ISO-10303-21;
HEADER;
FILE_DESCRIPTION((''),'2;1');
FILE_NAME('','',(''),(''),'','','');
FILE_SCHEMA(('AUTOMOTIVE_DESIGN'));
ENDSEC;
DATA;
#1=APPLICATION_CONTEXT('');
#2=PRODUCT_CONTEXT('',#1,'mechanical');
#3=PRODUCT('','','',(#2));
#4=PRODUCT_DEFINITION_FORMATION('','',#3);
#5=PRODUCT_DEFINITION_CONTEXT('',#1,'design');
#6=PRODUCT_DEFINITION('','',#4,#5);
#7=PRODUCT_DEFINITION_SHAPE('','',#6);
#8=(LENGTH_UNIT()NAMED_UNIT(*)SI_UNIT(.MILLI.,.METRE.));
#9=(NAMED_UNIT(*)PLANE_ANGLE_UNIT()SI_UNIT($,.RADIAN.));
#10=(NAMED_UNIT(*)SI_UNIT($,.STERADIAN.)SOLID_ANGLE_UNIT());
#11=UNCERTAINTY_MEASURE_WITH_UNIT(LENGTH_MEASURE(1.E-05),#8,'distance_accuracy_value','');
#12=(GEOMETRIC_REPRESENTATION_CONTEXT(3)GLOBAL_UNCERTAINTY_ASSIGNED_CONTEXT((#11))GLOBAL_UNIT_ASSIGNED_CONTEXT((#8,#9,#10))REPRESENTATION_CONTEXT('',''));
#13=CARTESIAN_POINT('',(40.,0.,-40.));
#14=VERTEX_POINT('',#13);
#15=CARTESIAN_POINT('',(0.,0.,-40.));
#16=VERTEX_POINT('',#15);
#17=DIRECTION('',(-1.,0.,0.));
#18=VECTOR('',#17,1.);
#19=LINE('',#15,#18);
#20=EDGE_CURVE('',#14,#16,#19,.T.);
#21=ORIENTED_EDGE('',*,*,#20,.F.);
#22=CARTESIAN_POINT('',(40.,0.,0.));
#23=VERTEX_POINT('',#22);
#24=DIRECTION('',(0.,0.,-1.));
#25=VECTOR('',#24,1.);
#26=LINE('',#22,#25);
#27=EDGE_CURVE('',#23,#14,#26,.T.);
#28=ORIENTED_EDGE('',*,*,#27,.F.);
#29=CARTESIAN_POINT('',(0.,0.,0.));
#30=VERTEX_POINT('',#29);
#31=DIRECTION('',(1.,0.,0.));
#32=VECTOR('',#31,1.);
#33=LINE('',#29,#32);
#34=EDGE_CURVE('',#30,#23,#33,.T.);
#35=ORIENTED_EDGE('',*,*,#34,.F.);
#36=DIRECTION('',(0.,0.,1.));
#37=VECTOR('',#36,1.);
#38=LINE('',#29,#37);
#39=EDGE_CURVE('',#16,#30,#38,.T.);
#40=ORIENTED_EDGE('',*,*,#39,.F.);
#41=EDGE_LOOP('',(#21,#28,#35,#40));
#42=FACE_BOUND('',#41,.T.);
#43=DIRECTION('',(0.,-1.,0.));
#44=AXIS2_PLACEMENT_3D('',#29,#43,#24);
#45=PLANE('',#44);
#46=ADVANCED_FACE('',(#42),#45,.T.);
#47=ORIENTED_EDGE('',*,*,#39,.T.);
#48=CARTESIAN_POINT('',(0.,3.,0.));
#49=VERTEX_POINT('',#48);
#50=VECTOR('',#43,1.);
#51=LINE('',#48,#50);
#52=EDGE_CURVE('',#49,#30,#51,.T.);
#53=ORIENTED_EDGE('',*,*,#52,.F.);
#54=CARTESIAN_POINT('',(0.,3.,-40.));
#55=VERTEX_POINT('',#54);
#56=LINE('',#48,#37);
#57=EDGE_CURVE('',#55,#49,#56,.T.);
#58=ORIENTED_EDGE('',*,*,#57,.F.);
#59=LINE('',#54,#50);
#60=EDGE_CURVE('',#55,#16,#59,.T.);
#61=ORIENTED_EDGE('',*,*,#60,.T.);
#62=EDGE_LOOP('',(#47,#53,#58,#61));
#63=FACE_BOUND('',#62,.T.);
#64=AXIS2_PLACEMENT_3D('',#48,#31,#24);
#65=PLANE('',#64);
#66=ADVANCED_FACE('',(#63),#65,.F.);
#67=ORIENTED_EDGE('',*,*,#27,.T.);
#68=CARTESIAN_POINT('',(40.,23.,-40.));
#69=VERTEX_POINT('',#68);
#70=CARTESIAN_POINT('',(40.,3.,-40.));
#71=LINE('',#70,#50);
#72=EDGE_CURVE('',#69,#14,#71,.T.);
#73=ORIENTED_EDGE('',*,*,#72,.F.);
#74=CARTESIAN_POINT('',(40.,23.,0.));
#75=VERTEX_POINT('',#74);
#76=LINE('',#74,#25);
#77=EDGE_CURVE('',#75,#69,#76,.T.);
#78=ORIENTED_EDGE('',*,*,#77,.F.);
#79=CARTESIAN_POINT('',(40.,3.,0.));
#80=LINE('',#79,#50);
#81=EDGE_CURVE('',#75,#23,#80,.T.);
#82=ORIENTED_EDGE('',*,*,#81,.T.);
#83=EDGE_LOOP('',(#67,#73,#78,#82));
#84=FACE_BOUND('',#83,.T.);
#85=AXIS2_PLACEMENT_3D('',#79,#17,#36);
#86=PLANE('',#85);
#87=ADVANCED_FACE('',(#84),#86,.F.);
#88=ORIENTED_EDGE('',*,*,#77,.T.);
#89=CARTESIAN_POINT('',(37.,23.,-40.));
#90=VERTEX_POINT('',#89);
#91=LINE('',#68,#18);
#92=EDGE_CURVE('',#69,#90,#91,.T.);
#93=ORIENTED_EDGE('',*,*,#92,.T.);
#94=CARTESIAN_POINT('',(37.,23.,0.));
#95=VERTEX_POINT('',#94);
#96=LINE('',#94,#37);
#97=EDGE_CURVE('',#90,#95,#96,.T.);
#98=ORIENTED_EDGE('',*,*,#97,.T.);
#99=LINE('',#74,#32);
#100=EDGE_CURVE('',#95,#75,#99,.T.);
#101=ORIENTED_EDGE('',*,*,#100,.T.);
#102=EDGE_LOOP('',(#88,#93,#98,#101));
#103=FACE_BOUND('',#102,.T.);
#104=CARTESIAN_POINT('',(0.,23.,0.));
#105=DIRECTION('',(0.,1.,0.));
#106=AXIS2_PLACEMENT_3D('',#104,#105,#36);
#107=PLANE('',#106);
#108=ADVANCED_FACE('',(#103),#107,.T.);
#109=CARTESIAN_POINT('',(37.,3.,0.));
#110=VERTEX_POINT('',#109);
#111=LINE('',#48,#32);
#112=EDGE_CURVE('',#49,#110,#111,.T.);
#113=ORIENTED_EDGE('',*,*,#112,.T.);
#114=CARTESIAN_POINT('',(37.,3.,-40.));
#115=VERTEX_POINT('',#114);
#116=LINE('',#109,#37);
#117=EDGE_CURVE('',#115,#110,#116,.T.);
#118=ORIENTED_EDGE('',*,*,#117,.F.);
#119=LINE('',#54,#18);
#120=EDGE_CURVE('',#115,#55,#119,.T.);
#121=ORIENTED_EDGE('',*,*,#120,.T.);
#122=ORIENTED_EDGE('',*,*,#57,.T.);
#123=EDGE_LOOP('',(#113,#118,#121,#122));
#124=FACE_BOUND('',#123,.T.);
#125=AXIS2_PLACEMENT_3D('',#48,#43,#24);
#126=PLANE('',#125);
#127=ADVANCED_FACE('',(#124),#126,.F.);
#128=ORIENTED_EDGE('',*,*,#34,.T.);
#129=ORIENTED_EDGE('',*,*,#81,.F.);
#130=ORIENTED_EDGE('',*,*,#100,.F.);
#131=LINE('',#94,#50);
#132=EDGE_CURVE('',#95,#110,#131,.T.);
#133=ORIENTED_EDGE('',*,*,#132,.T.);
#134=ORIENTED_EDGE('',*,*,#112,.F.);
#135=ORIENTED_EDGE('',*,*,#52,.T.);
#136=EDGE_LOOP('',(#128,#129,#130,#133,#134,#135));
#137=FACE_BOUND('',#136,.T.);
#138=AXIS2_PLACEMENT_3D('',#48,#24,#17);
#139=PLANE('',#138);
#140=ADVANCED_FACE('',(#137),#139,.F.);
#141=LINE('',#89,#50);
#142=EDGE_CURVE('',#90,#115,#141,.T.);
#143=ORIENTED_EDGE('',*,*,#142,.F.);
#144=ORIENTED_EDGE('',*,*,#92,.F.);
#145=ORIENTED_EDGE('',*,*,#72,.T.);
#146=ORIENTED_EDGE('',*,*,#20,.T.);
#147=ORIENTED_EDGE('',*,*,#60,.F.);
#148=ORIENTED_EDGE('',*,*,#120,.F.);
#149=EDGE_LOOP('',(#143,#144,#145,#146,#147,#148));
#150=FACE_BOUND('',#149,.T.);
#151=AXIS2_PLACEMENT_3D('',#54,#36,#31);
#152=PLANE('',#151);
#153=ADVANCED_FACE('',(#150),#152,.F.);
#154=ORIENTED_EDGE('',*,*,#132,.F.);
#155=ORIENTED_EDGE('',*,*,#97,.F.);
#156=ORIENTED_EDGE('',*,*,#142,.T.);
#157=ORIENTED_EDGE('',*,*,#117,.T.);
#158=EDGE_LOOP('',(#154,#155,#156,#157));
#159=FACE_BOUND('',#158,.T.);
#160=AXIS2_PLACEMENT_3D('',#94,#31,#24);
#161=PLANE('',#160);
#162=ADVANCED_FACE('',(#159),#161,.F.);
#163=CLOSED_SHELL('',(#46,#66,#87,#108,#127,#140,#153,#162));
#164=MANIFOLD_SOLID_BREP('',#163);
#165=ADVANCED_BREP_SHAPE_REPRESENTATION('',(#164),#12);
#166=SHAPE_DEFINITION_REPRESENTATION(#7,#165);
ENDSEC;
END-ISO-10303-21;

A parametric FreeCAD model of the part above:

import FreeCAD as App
import Part
import Sketcher
from FreeCAD import Vector

doc = App.newDocument("Part")
body = doc.addObject("PartDesign::Body", "Body")

sketch1 = body.newObject("Sketcher::SketchObject", "Sketch")
sketch1.AttachmentSupport = (doc.getObject("XZ_Plane"), [""])
sketch1.MapMode = "FlatFace"
sketch1.addGeometry(Part.LineSegment(Vector(0, -40, 0), Vector(0, 0, 0)), False)
sketch1.addGeometry(Part.LineSegment(Vector(0, 0, 0), Vector(40, 0, 0)), False)
sketch1.addGeometry(Part.LineSegment(Vector(40, 0, 0), Vector(40, -40, 0)), False)
sketch1.addGeometry(Part.LineSegment(Vector(40, -40, 0), Vector(0, -40, 0)), False)
sketch1.addConstraint(Sketcher.Constraint("Coincident", 0, 2, 1, 1))
sketch1.addConstraint(Sketcher.Constraint("Coincident", 1, 2, 2, 1))
sketch1.addConstraint(Sketcher.Constraint("Coincident", 2, 2, 3, 1))
sketch1.addConstraint(Sketcher.Constraint("Coincident", 3, 2, 0, 1))
sketch1.addConstraint(Sketcher.Constraint("Vertical", 0))
sketch1.addConstraint(Sketcher.Constraint("Horizontal", 1))
sketch1.addConstraint(Sketcher.Constraint("Vertical", 2))
sketch1.addConstraint(Sketcher.Constraint("Horizontal", 3))
sketch1.addConstraint(Sketcher.Constraint("Coincident", 0, 2, -1, 1))
sketch1.addConstraint(Sketcher.Constraint("Equal", 3, 0))
sketch1.addConstraint(Sketcher.Constraint("DistanceX", 1, 1, 1, 2, 40.0))
pad1 = body.newObject("PartDesign::Pad", "Pad")
pad1.Profile = sketch1
pad1.Length = 3
pad1.Reversed = True

sketch2 = body.newObject("Sketcher::SketchObject", "Sketch001")
sketch2.AttachmentSupport = (doc.getObject("XZ_Plane"), [""])
sketch2.MapMode = "FlatFace"
sketch2.AttachmentOffset = App.Placement(Vector(0, 0, -3), App.Rotation())
sketch2.addGeometry(Part.LineSegment(Vector(37, -40, 0), Vector(37, 0, 0)), False)
sketch2.addGeometry(Part.LineSegment(Vector(37, 0, 0), Vector(40, 0, 0)), False)
sketch2.addGeometry(Part.LineSegment(Vector(40, 0, 0), Vector(40, -40, 0)), False)
sketch2.addGeometry(Part.LineSegment(Vector(40, -40, 0), Vector(37, -40, 0)), False)
sketch2.addConstraint(Sketcher.Constraint("Coincident", 0, 2, 1, 1))
sketch2.addConstraint(Sketcher.Constraint("Coincident", 1, 2, 2, 1))
sketch2.addConstraint(Sketcher.Constraint("Coincident", 2, 2, 3, 1))
sketch2.addConstraint(Sketcher.Constraint("Coincident", 3, 2, 0, 1))
sketch2.addConstraint(Sketcher.Constraint("Vertical", 0))
sketch2.addConstraint(Sketcher.Constraint("Horizontal", 1))
sketch2.addConstraint(Sketcher.Constraint("Vertical", 2))
sketch2.addConstraint(Sketcher.Constraint("Horizontal", 3))
sketch2.addConstraint(Sketcher.Constraint("PointOnObject", 0, 2, -1))
sketch2.addConstraint(Sketcher.Constraint("DistanceX", 1, 1, 1, 2, 3.0))
sketch2.addConstraint(Sketcher.Constraint("DistanceY", 0, 1, 0, 2, 40.0))
sketch2.addConstraint(Sketcher.Constraint("DistanceX", -1, 1, 0, 2, 37.0))
pad2 = body.newObject("PartDesign::Pad", "Pad001")
pad2.Profile = sketch2
pad2.Length = 20
pad2.Reversed = True

doc.recompute()
